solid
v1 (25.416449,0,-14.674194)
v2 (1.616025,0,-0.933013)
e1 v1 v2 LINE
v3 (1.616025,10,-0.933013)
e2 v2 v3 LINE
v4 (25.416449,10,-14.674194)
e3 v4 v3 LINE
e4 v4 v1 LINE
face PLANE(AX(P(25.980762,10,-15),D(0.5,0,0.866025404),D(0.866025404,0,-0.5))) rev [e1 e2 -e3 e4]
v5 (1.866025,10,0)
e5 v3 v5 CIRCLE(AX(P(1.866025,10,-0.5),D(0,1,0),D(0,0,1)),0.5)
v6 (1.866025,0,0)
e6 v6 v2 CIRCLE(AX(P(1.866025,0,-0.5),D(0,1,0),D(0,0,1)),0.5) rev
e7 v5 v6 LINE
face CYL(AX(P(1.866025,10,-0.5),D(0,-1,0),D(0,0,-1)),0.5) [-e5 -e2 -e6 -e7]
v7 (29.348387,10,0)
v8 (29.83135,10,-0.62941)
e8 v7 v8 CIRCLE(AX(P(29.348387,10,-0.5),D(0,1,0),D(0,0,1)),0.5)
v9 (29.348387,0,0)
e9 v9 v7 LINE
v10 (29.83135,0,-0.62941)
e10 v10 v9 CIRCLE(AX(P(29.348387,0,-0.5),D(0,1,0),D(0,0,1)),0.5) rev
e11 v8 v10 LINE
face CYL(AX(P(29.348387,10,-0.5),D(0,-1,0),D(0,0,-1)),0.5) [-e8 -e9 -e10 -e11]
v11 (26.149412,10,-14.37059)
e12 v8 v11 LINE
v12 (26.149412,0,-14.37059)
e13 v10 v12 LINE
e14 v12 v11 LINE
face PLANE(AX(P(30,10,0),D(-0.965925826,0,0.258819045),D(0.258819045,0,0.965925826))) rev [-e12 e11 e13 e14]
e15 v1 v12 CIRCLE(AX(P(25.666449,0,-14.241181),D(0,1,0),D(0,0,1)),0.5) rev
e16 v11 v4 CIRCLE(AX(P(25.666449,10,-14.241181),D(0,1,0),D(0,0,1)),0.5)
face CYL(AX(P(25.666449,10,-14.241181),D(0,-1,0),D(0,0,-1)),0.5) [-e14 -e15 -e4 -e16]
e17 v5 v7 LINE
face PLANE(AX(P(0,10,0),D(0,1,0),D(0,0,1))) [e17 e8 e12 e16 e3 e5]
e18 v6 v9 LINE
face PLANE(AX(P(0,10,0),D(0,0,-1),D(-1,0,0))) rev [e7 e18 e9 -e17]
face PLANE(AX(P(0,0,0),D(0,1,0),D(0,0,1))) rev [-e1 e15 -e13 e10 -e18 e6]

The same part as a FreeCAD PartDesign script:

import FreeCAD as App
import Part
import Sketcher
Q = App.Units.Quantity


def edges_at(feature, points):
    """Names of the edges that pass closest to the given points."""
    edges = feature.Shape.Edges
    near = lambda p: min(range(len(edges)), key=lambda i: edges[i].distToShape(Part.Vertex(*p))[0])
    return sorted({f"Edge{near(p) + 1}" for p in points})


def add_polygon(sketch, points):
    """Adds a closed chain of lines whose ends are joined by coincident constraints."""
    first, n = sketch.GeometryCount, len(points)
    for a, b in zip(points, points[1:] + points[:1]):
        sketch.addGeometry(Part.LineSegment(App.Vector(*a, 0), App.Vector(*b, 0)), False)
    for i in range(n):
        sketch.addConstraint(Sketcher.Constraint("Coincident", first + i, 2, first + (i + 1) % n, 1))

doc = App.newDocument("Part")
body = doc.addObject("PartDesign::Body", "Body")

sketch1 = body.newObject("Sketcher::SketchObject", "Sketch")
sketch1.AttachmentSupport = (doc.getObject("XZ_Plane"), [""])
sketch1.MapMode = "FlatFace"
add_polygon(sketch1, [(0, 0), (30, 0), (25.980762, -15)])
sketch1.addConstraint(Sketcher.Constraint("Horizontal", 0))
sketch1.addConstraint(Sketcher.Constraint("Coincident", 2, 2, -1, 1))
sketch1.addConstraint(Sketcher.Constraint("DistanceX", 0, 1, 0, 2, 30.0))
sketch1.addConstraint(Sketcher.Constraint("Angle", 1, Q("-105 deg")))
sketch1.addConstraint(Sketcher.Constraint("Angle", 2, Q("150 deg")))
pad1 = body.newObject("PartDesign::Pad", "Pad")
pad1.Profile = sketch1
pad1.Length = 10
pad1.Reversed = True
doc.recompute()

fillet = body.newObject("PartDesign::Fillet", "Fillet")
fillet.Base = (pad1, edges_at(pad1, [(30, 5, 0), (0, 5, 0), (25.981, 5, -15)]))
fillet.Radius = 0.5

doc.recompute()
